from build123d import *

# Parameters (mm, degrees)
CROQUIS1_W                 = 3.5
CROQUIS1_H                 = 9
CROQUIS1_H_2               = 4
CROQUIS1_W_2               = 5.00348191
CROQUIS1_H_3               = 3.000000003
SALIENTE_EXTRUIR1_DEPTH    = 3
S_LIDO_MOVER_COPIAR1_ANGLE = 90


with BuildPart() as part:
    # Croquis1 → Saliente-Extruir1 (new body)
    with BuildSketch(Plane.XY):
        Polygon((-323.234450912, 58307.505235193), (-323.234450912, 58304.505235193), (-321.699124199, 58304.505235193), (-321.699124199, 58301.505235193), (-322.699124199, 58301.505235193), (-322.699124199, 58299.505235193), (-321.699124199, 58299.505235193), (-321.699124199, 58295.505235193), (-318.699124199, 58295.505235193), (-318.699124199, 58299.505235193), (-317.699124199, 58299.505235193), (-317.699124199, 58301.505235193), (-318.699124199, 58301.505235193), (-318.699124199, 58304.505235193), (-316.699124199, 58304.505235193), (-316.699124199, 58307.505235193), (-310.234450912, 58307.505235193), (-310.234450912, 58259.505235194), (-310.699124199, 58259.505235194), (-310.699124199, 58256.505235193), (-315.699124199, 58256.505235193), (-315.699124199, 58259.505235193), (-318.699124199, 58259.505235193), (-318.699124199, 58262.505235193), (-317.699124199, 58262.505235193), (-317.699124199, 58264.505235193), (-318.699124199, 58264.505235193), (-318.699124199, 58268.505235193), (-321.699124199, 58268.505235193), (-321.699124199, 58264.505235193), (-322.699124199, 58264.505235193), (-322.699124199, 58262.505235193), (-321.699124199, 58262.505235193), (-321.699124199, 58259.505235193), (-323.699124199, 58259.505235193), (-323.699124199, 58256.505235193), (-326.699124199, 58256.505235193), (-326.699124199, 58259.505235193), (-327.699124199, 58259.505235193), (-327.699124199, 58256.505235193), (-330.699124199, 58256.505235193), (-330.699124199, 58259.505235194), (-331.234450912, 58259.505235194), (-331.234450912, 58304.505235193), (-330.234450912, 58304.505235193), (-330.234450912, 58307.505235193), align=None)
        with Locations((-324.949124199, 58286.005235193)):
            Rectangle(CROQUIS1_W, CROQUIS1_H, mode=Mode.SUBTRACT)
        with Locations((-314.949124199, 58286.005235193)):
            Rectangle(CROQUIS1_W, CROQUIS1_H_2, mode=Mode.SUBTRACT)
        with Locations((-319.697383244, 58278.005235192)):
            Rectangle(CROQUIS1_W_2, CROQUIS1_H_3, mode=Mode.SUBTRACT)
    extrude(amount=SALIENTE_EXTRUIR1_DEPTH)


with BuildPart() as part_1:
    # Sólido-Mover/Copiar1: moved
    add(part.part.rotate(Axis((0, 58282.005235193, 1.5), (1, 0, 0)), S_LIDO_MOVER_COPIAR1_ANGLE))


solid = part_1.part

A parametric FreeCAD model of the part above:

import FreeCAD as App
import Part
import Sketcher

V = App.Vector

doc = App.newDocument("Part")
body = doc.addObject("PartDesign::Body", "Body")

# Sketch on XY plane
sketch1 = doc.addObject("Sketcher::SketchObject", "Sketch")
body.addObject(sketch1)
sketch1.AttachmentSupport = (doc.XY_Plane, [""])
sketch1.MapMode = "FlatFace"
sketch1.addGeometry(Part.LineSegment(V(-323.234451, 58304.505235, 0), V(-323.234451, 58307.505235, 0)), False)
sketch1.addGeometry(Part.LineSegment(V(-323.234451, 58307.505235, 0), V(-330.234451, 58307.505235, 0)), False)
sketch1.addGeometry(Part.LineSegment(V(-330.234451, 58307.505235, 0), V(-330.234451, 58304.505235, 0)), False)
sketch1.addGeometry(Part.LineSegment(V(-330.234451, 58304.505235, 0), V(-331.234451, 58304.505235, 0)), False)
sketch1.addGeometry(Part.LineSegment(V(-331.234451, 58304.505235, 0), V(-331.234451, 58259.505235, 0)), False)
sketch1.addGeometry(Part.LineSegment(V(-331.234451, 58259.505235, 0), V(-330.699124, 58259.505235, 0)), False)
sketch1.addGeometry(Part.LineSegment(V(-330.699124, 58259.505235, 0), V(-330.699124, 58256.505235, 0)), False)
sketch1.addGeometry(Part.LineSegment(V(-330.699124, 58256.505235, 0), V(-327.699124, 58256.505235, 0)), False)
sketch1.addGeometry(Part.LineSegment(V(-327.699124, 58256.505235, 0), V(-327.699124, 58259.505235, 0)), False)
sketch1.addGeometry(Part.LineSegment(V(-327.699124, 58259.505235, 0), V(-326.699124, 58259.505235, 0)), False)
sketch1.addGeometry(Part.LineSegment(V(-326.699124, 58259.505235, 0), V(-326.699124, 58256.505235, 0)), False)
sketch1.addGeometry(Part.LineSegment(V(-326.699124, 58256.505235, 0), V(-323.699124, 58256.505235, 0)), False)
sketch1.addGeometry(Part.LineSegment(V(-323.699124, 58256.505235, 0), V(-323.699124, 58259.505235, 0)), False)
sketch1.addGeometry(Part.LineSegment(V(-323.699124, 58259.505235, 0), V(-321.699124, 58259.505235, 0)), False)
sketch1.addGeometry(Part.LineSegment(V(-321.699124, 58259.505235, 0), V(-321.699124, 58262.505235, 0)), False)
sketch1.addGeometry(Part.LineSegment(V(-321.699124, 58262.505235, 0), V(-322.699124, 58262.505235, 0)), False)
sketch1.addGeometry(Part.LineSegment(V(-322.699124, 58262.505235, 0), V(-322.699124, 58264.505235, 0)), False)
sketch1.addGeometry(Part.LineSegment(V(-322.699124, 58264.505235, 0), V(-321.699124, 58264.505235, 0)), False)
sketch1.addGeometry(Part.LineSegment(V(-321.699124, 58264.505235, 0), V(-321.699124, 58268.505235, 0)), False)
sketch1.addGeometry(Part.LineSegment(V(-321.699124, 58268.505235, 0), V(-318.699124, 58268.505235, 0)), False)
sketch1.addGeometry(Part.LineSegment(V(-318.699124, 58268.505235, 0), V(-318.699124, 58264.505235, 0)), False)
sketch1.addGeometry(Part.LineSegment(V(-318.699124, 58264.505235, 0), V(-317.699124, 58264.505235, 0)), False)
sketch1.addGeometry(Part.LineSegment(V(-317.699124, 58264.505235, 0), V(-317.699124, 58262.505235, 0)), False)
sketch1.addGeometry(Part.LineSegment(V(-317.699124, 58262.505235, 0), V(-318.699124, 58262.505235, 0)), False)
sketch1.addGeometry(Part.LineSegment(V(-318.699124, 58262.505235, 0), V(-318.699124, 58259.505235, 0)), False)
sketch1.addGeometry(Part.LineSegment(V(-318.699124, 58259.505235, 0), V(-315.699124, 58259.505235, 0)), False)
sketch1.addGeometry(Part.LineSegment(V(-315.699124, 58259.505235, 0), V(-315.699124, 58256.505235, 0)), False)
sketch1.addGeometry(Part.LineSegment(V(-315.699124, 58256.505235, 0), V(-310.699124, 58256.505235, 0)), False)
sketch1.addGeometry(Part.LineSegment(V(-310.699124, 58256.505235, 0), V(-310.699124, 58259.505235, 0)), False)
sketch1.addGeometry(Part.LineSegment(V(-310.699124, 58259.505235, 0), V(-310.234451, 58259.505235, 0)), False)
sketch1.addGeometry(Part.LineSegment(V(-310.234451, 58259.505235, 0), V(-310.234451, 58307.505235, 0)), False)
sketch1.addGeometry(Part.LineSegment(V(-310.234451, 58307.505235, 0), V(-316.699124, 58307.505235, 0)), False)
sketch1.addGeometry(Part.LineSegment(V(-316.699124, 58307.505235, 0), V(-316.699124, 58304.505235, 0)), False)
sketch1.addGeometry(Part.LineSegment(V(-316.699124, 58304.505235, 0), V(-318.699124, 58304.505235, 0)), False)
sketch1.addGeometry(Part.LineSegment(V(-318.699124, 58304.505235, 0), V(-318.699124, 58301.505235, 0)), False)
sketch1.addGeometry(Part.LineSegment(V(-318.699124, 58301.505235, 0), V(-317.699124, 58301.505235, 0)), False)
sketch1.addGeometry(Part.LineSegment(V(-317.699124, 58301.505235, 0), V(-317.699124, 58299.505235, 0)), False)
sketch1.addGeometry(Part.LineSegment(V(-317.699124, 58299.505235, 0), V(-318.699124, 58299.505235, 0)), False)
sketch1.addGeometry(Part.LineSegment(V(-318.699124, 58299.505235, 0), V(-318.699124, 58295.505235, 0)), False)
sketch1.addGeometry(Part.LineSegment(V(-318.699124, 58295.505235, 0), V(-321.699124, 58295.505235, 0)), False)
sketch1.addGeometry(Part.LineSegment(V(-321.699124, 58295.505235, 0), V(-321.699124, 58299.505235, 0)), False)
sketch1.addGeometry(Part.LineSegment(V(-321.699124, 58299.505235, 0), V(-322.699124, 58299.505235, 0)), False)
sketch1.addGeometry(Part.LineSegment(V(-322.699124, 58299.505235, 0), V(-322.699124, 58301.505235, 0)), False)
sketch1.addGeometry(Part.LineSegment(V(-322.699124, 58301.505235, 0), V(-321.699124, 58301.505235, 0)), False)
sketch1.addGeometry(Part.LineSegment(V(-321.699124, 58301.505235, 0), V(-321.699124, 58304.505235, 0)), False)
sketch1.addGeometry(Part.LineSegment(V(-321.699124, 58304.505235, 0), V(-323.234451, 58304.505235, 0)), False)
sketch1.addGeometry(Part.LineSegment(V(-322.199124, 58276.505235, 0), V(-322.199124, 58279.505235, 0)), False)
sketch1.addGeometry(Part.LineSegment(V(-322.199124, 58279.505235, 0), V(-317.195642, 58279.505235, 0)), False)
sketch1.addGeometry(Part.LineSegment(V(-317.195642, 58279.505235, 0), V(-317.195642, 58276.505235, 0)), False)
sketch1.addGeometry(Part.LineSegment(V(-317.195642, 58276.505235, 0), V(-322.199124, 58276.505235, 0)), False)
sketch1.addGeometry(Part.LineSegment(V(-316.699124, 58284.005235, 0), V(-316.699124, 58288.005235, 0)), False)
sketch1.addGeometry(Part.LineSegment(V(-316.699124, 58288.005235, 0), V(-313.199124, 58288.005235, 0)), False)
sketch1.addGeometry(Part.LineSegment(V(-313.199124, 58288.005235, 0), V(-313.199124, 58284.005235, 0)), False)
sketch1.addGeometry(Part.LineSegment(V(-313.199124, 58284.005235, 0), V(-316.699124, 58284.005235, 0)), False)
sketch1.addGeometry(Part.LineSegment(V(-326.699124, 58281.505235, 0), V(-326.699124, 58290.505235, 0)), False)
sketch1.addGeometry(Part.LineSegment(V(-326.699124, 58290.505235, 0), V(-323.199124, 58290.505235, 0)), False)
sketch1.addGeometry(Part.LineSegment(V(-323.199124, 58290.505235, 0), V(-323.199124, 58281.505235, 0)), False)
sketch1.addGeometry(Part.LineSegment(V(-323.199124, 58281.505235, 0), V(-326.699124, 58281.505235, 0)), False)
sketch1.addConstraint(Sketcher.Constraint("Coincident", 0, 2, 1, 1))
sketch1.addConstraint(Sketcher.Constraint("Coincident", 1, 2, 2, 1))
sketch1.addConstraint(Sketcher.Constraint("Coincident", 2, 2, 3, 1))
sketch1.addConstraint(Sketcher.Constraint("Coincident", 3, 2, 4, 1))
sketch1.addConstraint(Sketcher.Constraint("Coincident", 4, 2, 5, 1))
sketch1.addConstraint(Sketcher.Constraint("Coincident", 5, 2, 6, 1))
sketch1.addConstraint(Sketcher.Constraint("Coincident", 6, 2, 7, 1))
sketch1.addConstraint(Sketcher.Constraint("Coincident", 7, 2, 8, 1))
sketch1.addConstraint(Sketcher.Constraint("Coincident", 8, 2, 9, 1))
sketch1.addConstraint(Sketcher.Constraint("Coincident", 9, 2, 10, 1))
sketch1.addConstraint(Sketcher.Constraint("Coincident", 10, 2, 11, 1))
sketch1.addConstraint(Sketcher.Constraint("Coincident", 11, 2, 12, 1))
sketch1.addConstraint(Sketcher.Constraint("Coincident", 12, 2, 13, 1))
sketch1.addConstraint(Sketcher.Constraint("Coincident", 13, 2, 14, 1))
sketch1.addConstraint(Sketcher.Constraint("Coincident", 14, 2, 15, 1))
sketch1.addConstraint(Sketcher.Constraint("Coincident", 15, 2, 16, 1))
sketch1.addConstraint(Sketcher.Constraint("Coincident", 16, 2, 17, 1))
sketch1.addConstraint(Sketcher.Constraint("Coincident", 17, 2, 18, 1))
sketch1.addConstraint(Sketcher.Constraint("Coincident", 18, 2, 19, 1))
sketch1.addConstraint(Sketcher.Constraint("Coincident", 19, 2, 20, 1))
sketch1.addConstraint(Sketcher.Constraint("Coincident", 20, 2, 21, 1))
sketch1.addConstraint(Sketcher.Constraint("Coincident", 21, 2, 22, 1))
sketch1.addConstraint(Sketcher.Constraint("Coincident", 22, 2, 23, 1))
sketch1.addConstraint(Sketcher.Constraint("Coincident", 23, 2, 24, 1))
sketch1.addConstraint(Sketcher.Constraint("Coincident", 24, 2, 25, 1))
sketch1.addConstraint(Sketcher.Constraint("Coincident", 25, 2, 26, 1))
sketch1.addConstraint(Sketcher.Constraint("Coincident", 26, 2, 27, 1))
sketch1.addConstraint(Sketcher.Constraint("Coincident", 27, 2, 28, 1))
sketch1.addConstraint(Sketcher.Constraint("Coincident", 28, 2, 29, 1))
sketch1.addConstraint(Sketcher.Constraint("Coincident", 29, 2, 30, 1))
sketch1.addConstraint(Sketcher.Constraint("Coincident", 30, 2, 31, 1))
sketch1.addConstraint(Sketcher.Constraint("Coincident", 31, 2, 32, 1))
sketch1.addConstraint(Sketcher.Constraint("Coincident", 32, 2, 33, 1))
sketch1.addConstraint(Sketcher.Constraint("Coincident", 33, 2, 34, 1))
sketch1.addConstraint(Sketcher.Constraint("Coincident", 34, 2, 35, 1))
sketch1.addConstraint(Sketcher.Constraint("Coincident", 35, 2, 36, 1))
sketch1.addConstraint(Sketcher.Constraint("Coincident", 36, 2, 37, 1))
sketch1.addConstraint(Sketcher.Constraint("Coincident", 37, 2, 38, 1))
sketch1.addConstraint(Sketcher.Constraint("Coincident", 38, 2, 39, 1))
sketch1.addConstraint(Sketcher.Constraint("Coincident", 39, 2, 40, 1))
sketch1.addConstraint(Sketcher.Constraint("Coincident", 40, 2, 41, 1))
sketch1.addConstraint(Sketcher.Constraint("Coincident", 41, 2, 42, 1))
sketch1.addConstraint(Sketcher.Constraint("Coincident", 42, 2, 43, 1))
sketch1.addConstraint(Sketcher.Constraint("Coincident", 43, 2, 44, 1))
sketch1.addConstraint(Sketcher.Constraint("Coincident", 44, 2, 45, 1))
sketch1.addConstraint(Sketcher.Constraint("Coincident", 45, 2, 0, 1))
sketch1.addConstraint(Sketcher.Constraint("Coincident", 46, 2, 47, 1))
sketch1.addConstraint(Sketcher.Constraint("Coincident", 47, 2, 48, 1))
sketch1.addConstraint(Sketcher.Constraint("Coincident", 48, 2, 49, 1))
sketch1.addConstraint(Sketcher.Constraint("Coincident", 49, 2, 46, 1))
sketch1.addConstraint(Sketcher.Constraint("Coincident", 50, 2, 51, 1))
sketch1.addConstraint(Sketcher.Constraint("Coincident", 51, 2, 52, 1))
sketch1.addConstraint(Sketcher.Constraint("Coincident", 52, 2, 53, 1))
sketch1.addConstraint(Sketcher.Constraint("Coincident", 53, 2, 50, 1))
sketch1.addConstraint(Sketcher.Constraint("Coincident", 54, 2, 55, 1))
sketch1.addConstraint(Sketcher.Constraint("Coincident", 55, 2, 56, 1))
sketch1.addConstraint(Sketcher.Constraint("Coincident", 56, 2, 57, 1))
sketch1.addConstraint(Sketcher.Constraint("Coincident", 57, 2, 54, 1))
sketch1.addConstraint(Sketcher.Constraint("Vertical", 0))
sketch1.addConstraint(Sketcher.Constraint("Horizontal", 1))
sketch1.addConstraint(Sketcher.Constraint("Vertical", 2))
sketch1.addConstraint(Sketcher.Constraint("Horizontal", 3))
sketch1.addConstraint(Sketcher.Constraint("Vertical", 4))
sketch1.addConstraint(Sketcher.Constraint("Horizontal", 5))
sketch1.addConstraint(Sketcher.Constraint("Vertical", 6))
sketch1.addConstraint(Sketcher.Constraint("Horizontal", 7))
sketch1.addConstraint(Sketcher.Constraint("Vertical", 8))
sketch1.addConstraint(Sketcher.Constraint("Horizontal", 9))
sketch1.addConstraint(Sketcher.Constraint("Vertical", 10))
sketch1.addConstraint(Sketcher.Constraint("Horizontal", 11))
sketch1.addConstraint(Sketcher.Constraint("Vertical", 12))
sketch1.addConstraint(Sketcher.Constraint("Horizontal", 13))
sketch1.addConstraint(Sketcher.Constraint("Vertical", 14))
sketch1.addConstraint(Sketcher.Constraint("Horizontal", 15))
sketch1.addConstraint(Sketcher.Constraint("Vertical", 16))
sketch1.addConstraint(Sketcher.Constraint("Horizontal", 17))
sketch1.addConstraint(Sketcher.Constraint("Vertical", 18))
sketch1.addConstraint(Sketcher.Constraint("Horizontal", 19))
sketch1.addConstraint(Sketcher.Constraint("Vertical", 20))
sketch1.addConstraint(Sketcher.Constraint("Horizontal", 21))
sketch1.addConstraint(Sketcher.Constraint("Vertical", 22))
sketch1.addConstraint(Sketcher.Constraint("Horizontal", 23))
sketch1.addConstraint(Sketcher.Constraint("Vertical", 24))
sketch1.addConstraint(Sketcher.Constraint("Horizontal", 25))
sketch1.addConstraint(Sketcher.Constraint("Vertical", 26))
sketch1.addConstraint(Sketcher.Constraint("Horizontal", 27))
sketch1.addConstraint(Sketcher.Constraint("Vertical", 28))
sketch1.addConstraint(Sketcher.Constraint("Horizontal", 29))
sketch1.addConstraint(Sketcher.Constraint("Vertical", 30))
sketch1.addConstraint(Sketcher.Constraint("Horizontal", 31))
sketch1.addConstraint(Sketcher.Constraint("Vertical", 32))
sketch1.addConstraint(Sketcher.Constraint("Horizontal", 33))
sketch1.addConstraint(Sketcher.Constraint("Vertical", 34))
sketch1.addConstraint(Sketcher.Constraint("Horizontal", 35))
sketch1.addConstraint(Sketcher.Constraint("Vertical", 36))
sketch1.addConstraint(Sketcher.Constraint("Horizontal", 37))
sketch1.addConstraint(Sketcher.Constraint("Vertical", 38))
sketch1.addConstraint(Sketcher.Constraint("Horizontal", 39))
sketch1.addConstraint(Sketcher.Constraint("Vertical", 40))
sketch1.addConstraint(Sketcher.Constraint("Horizontal", 41))
sketch1.addConstraint(Sketcher.Constraint("Vertical", 42))
sketch1.addConstraint(Sketcher.Constraint("Horizontal", 43))
sketch1.addConstraint(Sketcher.Constraint("Vertical", 44))
sketch1.addConstraint(Sketcher.Constraint("Horizontal", 45))
sketch1.addConstraint(Sketcher.Constraint("Vertical", 46))
sketch1.addConstraint(Sketcher.Constraint("Horizontal", 47))
sketch1.addConstraint(Sketcher.Constraint("Vertical", 48))
sketch1.addConstraint(Sketcher.Constraint("Horizontal", 49))
sketch1.addConstraint(Sketcher.Constraint("Vertical", 50))
sketch1.addConstraint(Sketcher.Constraint("Horizontal", 51))
sketch1.addConstraint(Sketcher.Constraint("Vertical", 52))
sketch1.addConstraint(Sketcher.Constraint("Horizontal", 53))
sketch1.addConstraint(Sketcher.Constraint("Vertical", 54))
sketch1.addConstraint(Sketcher.Constraint("Horizontal", 55))
sketch1.addConstraint(Sketcher.Constraint("Vertical", 56))
sketch1.addConstraint(Sketcher.Constraint("Horizontal", 57))
sketch1.addConstraint(Sketcher.Constraint("Horizontal", 5, 2, 8, 2))
sketch1.addConstraint(Sketcher.Constraint("Horizontal", 7, 2, 10, 2))
sketch1.addConstraint(Sketcher.Constraint("Horizontal", 9, 2, 12, 2))
sketch1.addConstraint(Sketcher.Constraint("Horizontal", 17, 2, 20, 2))
sketch1.addConstraint(Sketcher.Constraint("Horizontal", 15, 2, 22, 2))
sketch1.addConstraint(Sketcher.Constraint("Horizontal", 13, 2, 24, 2))
sketch1.addConstraint(Sketcher.Constraint("Horizontal", 11, 2, 26, 2))
sketch1.addConstraint(Sketcher.Constraint("Horizontal", 25, 2, 28, 2))
sketch1.addConstraint(Sketcher.Constraint("Horizontal", 1, 2, 30, 2))
sketch1.addConstraint(Sketcher.Constraint("Horizontal", 3, 2, 32, 2))
sketch1.addConstraint(Sketcher.Constraint("Horizontal", 37, 2, 40, 2))
sketch1.addConstraint(Sketcher.Constraint("Horizontal", 35, 2, 42, 2))
sketch1.addConstraint(Sketcher.Constraint("Horizontal", 33, 2, 44, 2))
sketch1.addConstraint(Sketcher.Constraint("Vertical", 14, 2, 17, 2))
sketch1.addConstraint(Sketcher.Constraint("Vertical", 20, 2, 23, 2))
sketch1.addConstraint(Sketcher.Constraint("Vertical", 24, 2, 33, 2))
sketch1.addConstraint(Sketcher.Constraint("Vertical", 22, 2, 35, 2))
sketch1.addConstraint(Sketcher.Constraint("Vertical", 34, 2, 37, 2))
sketch1.addConstraint(Sketcher.Constraint("Vertical", 18, 2, 39, 2))
sketch1.addConstraint(Sketcher.Constraint("Vertical", 16, 2, 41, 2))
sketch1.addConstraint(Sketcher.Constraint("Vertical", 40, 2, 43, 2))
sketch1.addConstraint(Sketcher.Constraint("Vertical", 32, 2, 50, 2))
sketch1.addConstraint(Sketcher.Constraint("Vertical", 10, 2, 54, 2))
sketch1.addConstraint(Sketcher.Constraint("Equal", 3, 9))
sketch1.addConstraint(Sketcher.Constraint("Equal", 7, 11))
sketch1.addConstraint(Sketcher.Constraint("Equal", 9, 15))
sketch1.addConstraint(Sketcher.Constraint("Equal", 11, 19))
sketch1.addConstraint(Sketcher.Constraint("Equal", 17, 21))
sketch1.addConstraint(Sketcher.Constraint("Equal", 19, 25))
sketch1.addConstraint(Sketcher.Constraint("Equal", 13, 33))
sketch1.addConstraint(Sketcher.Constraint("Equal", 53, 55))
sketch1.addConstraint(Sketcher.Constraint("Equal", 39, 0))
sketch1.addConstraint(Sketcher.Constraint("Equal", 2, 6))
sketch1.addConstraint(Sketcher.Constraint("Equal", 12, 14))
sketch1.addConstraint(Sketcher.Constraint("Equal", 33, 16))
sketch1.addConstraint(Sketcher.Constraint("Equal", 32, 34))
sketch1.addConstraint(Sketcher.Constraint("Equal", 22, 36))
sketch1.addConstraint(Sketcher.Constraint("Equal", 20, 38))
sketch1.addConstraint(Sketcher.Constraint("Equal", 44, 46))
sketch1.addConstraint(Sketcher.Constraint("Equal", 40, 50))
sketch1.addConstraint(Sketcher.Constraint("DistanceX", 1, 2, 1, 1, 7.0))
sketch1.addConstraint(Sketcher.Constraint("DistanceX", 3, 2, 3, 1, 1.0))
sketch1.addConstraint(Sketcher.Constraint("DistanceX", 7, 1, 7, 2, 3.0))
sketch1.addConstraint(Sketcher.Constraint("DistanceX", 13, 1, 13, 2, 2.0))
sketch1.addConstraint(Sketcher.Constraint("DistanceX", 27, 1, 27, 2, 5.0))
sketch1.addConstraint(Sketcher.Constraint("DistanceY", 4, 2, 4, 1, 45.0))
sketch1.addConstraint(Sketcher.Constraint("DistanceY", 18, 1, 18, 2, 4.0))
sketch1.addConstraint(Sketcher.Constraint("DistanceY", 54, 1, 54, 2, 9.0))
sketch1.addConstraint(Sketcher.Constraint("DistanceX", 51, 1, 51, 2, 3.5))
sketch1.addConstraint(Sketcher.Constraint("DistanceX", 0, 2, 30, 2, 13.0))
sketch1.addConstraint(Sketcher.Constraint("DistanceY", 18, 2, 46, 2, 11.0))
sketch1.addConstraint(Sketcher.Constraint("DistanceX", 46, 2, 52, 2, 9.0))
sketch1.addConstraint(Sketcher.Constraint("DistanceY", 54, 2, 39, 2, 5.0))
sketch1.addConstraint(Sketcher.Constraint("DistanceY", 50, 2, 38, 2, 7.5))
sketch1.addConstraint(Sketcher.Constraint("DistanceX", 47, 1, 47, 2, 5.003482))
sketch1.addConstraint(Sketcher.Constraint("DistanceX", 5, 1, 5, 2, 0.535327))
sketch1.addConstraint(Sketcher.Constraint("DistanceX", 0, 2, -1, 1, 323.234451))
sketch1.addConstraint(Sketcher.Constraint("DistanceY", -1, 1, 0, 2, 58307.505235))
pad1 = doc.addObject("PartDesign::Pad", "Pad")
body.addObject(pad1)
pad1.Profile = sketch1
pad1.Length = 3
body2 = doc.addObject("PartDesign::Body", "Body001")
doc.recompute()

body.Placement = App.Placement(V(0, 58283.505235, -58280.505235), App.Rotation(V(1, 0, 0), 90))
boolean = doc.addObject("PartDesign::Boolean", "Boolean")
body2.addObject(boolean)
boolean.Type = "Fuse"
boolean.addObjects([body])

doc.recompute()
